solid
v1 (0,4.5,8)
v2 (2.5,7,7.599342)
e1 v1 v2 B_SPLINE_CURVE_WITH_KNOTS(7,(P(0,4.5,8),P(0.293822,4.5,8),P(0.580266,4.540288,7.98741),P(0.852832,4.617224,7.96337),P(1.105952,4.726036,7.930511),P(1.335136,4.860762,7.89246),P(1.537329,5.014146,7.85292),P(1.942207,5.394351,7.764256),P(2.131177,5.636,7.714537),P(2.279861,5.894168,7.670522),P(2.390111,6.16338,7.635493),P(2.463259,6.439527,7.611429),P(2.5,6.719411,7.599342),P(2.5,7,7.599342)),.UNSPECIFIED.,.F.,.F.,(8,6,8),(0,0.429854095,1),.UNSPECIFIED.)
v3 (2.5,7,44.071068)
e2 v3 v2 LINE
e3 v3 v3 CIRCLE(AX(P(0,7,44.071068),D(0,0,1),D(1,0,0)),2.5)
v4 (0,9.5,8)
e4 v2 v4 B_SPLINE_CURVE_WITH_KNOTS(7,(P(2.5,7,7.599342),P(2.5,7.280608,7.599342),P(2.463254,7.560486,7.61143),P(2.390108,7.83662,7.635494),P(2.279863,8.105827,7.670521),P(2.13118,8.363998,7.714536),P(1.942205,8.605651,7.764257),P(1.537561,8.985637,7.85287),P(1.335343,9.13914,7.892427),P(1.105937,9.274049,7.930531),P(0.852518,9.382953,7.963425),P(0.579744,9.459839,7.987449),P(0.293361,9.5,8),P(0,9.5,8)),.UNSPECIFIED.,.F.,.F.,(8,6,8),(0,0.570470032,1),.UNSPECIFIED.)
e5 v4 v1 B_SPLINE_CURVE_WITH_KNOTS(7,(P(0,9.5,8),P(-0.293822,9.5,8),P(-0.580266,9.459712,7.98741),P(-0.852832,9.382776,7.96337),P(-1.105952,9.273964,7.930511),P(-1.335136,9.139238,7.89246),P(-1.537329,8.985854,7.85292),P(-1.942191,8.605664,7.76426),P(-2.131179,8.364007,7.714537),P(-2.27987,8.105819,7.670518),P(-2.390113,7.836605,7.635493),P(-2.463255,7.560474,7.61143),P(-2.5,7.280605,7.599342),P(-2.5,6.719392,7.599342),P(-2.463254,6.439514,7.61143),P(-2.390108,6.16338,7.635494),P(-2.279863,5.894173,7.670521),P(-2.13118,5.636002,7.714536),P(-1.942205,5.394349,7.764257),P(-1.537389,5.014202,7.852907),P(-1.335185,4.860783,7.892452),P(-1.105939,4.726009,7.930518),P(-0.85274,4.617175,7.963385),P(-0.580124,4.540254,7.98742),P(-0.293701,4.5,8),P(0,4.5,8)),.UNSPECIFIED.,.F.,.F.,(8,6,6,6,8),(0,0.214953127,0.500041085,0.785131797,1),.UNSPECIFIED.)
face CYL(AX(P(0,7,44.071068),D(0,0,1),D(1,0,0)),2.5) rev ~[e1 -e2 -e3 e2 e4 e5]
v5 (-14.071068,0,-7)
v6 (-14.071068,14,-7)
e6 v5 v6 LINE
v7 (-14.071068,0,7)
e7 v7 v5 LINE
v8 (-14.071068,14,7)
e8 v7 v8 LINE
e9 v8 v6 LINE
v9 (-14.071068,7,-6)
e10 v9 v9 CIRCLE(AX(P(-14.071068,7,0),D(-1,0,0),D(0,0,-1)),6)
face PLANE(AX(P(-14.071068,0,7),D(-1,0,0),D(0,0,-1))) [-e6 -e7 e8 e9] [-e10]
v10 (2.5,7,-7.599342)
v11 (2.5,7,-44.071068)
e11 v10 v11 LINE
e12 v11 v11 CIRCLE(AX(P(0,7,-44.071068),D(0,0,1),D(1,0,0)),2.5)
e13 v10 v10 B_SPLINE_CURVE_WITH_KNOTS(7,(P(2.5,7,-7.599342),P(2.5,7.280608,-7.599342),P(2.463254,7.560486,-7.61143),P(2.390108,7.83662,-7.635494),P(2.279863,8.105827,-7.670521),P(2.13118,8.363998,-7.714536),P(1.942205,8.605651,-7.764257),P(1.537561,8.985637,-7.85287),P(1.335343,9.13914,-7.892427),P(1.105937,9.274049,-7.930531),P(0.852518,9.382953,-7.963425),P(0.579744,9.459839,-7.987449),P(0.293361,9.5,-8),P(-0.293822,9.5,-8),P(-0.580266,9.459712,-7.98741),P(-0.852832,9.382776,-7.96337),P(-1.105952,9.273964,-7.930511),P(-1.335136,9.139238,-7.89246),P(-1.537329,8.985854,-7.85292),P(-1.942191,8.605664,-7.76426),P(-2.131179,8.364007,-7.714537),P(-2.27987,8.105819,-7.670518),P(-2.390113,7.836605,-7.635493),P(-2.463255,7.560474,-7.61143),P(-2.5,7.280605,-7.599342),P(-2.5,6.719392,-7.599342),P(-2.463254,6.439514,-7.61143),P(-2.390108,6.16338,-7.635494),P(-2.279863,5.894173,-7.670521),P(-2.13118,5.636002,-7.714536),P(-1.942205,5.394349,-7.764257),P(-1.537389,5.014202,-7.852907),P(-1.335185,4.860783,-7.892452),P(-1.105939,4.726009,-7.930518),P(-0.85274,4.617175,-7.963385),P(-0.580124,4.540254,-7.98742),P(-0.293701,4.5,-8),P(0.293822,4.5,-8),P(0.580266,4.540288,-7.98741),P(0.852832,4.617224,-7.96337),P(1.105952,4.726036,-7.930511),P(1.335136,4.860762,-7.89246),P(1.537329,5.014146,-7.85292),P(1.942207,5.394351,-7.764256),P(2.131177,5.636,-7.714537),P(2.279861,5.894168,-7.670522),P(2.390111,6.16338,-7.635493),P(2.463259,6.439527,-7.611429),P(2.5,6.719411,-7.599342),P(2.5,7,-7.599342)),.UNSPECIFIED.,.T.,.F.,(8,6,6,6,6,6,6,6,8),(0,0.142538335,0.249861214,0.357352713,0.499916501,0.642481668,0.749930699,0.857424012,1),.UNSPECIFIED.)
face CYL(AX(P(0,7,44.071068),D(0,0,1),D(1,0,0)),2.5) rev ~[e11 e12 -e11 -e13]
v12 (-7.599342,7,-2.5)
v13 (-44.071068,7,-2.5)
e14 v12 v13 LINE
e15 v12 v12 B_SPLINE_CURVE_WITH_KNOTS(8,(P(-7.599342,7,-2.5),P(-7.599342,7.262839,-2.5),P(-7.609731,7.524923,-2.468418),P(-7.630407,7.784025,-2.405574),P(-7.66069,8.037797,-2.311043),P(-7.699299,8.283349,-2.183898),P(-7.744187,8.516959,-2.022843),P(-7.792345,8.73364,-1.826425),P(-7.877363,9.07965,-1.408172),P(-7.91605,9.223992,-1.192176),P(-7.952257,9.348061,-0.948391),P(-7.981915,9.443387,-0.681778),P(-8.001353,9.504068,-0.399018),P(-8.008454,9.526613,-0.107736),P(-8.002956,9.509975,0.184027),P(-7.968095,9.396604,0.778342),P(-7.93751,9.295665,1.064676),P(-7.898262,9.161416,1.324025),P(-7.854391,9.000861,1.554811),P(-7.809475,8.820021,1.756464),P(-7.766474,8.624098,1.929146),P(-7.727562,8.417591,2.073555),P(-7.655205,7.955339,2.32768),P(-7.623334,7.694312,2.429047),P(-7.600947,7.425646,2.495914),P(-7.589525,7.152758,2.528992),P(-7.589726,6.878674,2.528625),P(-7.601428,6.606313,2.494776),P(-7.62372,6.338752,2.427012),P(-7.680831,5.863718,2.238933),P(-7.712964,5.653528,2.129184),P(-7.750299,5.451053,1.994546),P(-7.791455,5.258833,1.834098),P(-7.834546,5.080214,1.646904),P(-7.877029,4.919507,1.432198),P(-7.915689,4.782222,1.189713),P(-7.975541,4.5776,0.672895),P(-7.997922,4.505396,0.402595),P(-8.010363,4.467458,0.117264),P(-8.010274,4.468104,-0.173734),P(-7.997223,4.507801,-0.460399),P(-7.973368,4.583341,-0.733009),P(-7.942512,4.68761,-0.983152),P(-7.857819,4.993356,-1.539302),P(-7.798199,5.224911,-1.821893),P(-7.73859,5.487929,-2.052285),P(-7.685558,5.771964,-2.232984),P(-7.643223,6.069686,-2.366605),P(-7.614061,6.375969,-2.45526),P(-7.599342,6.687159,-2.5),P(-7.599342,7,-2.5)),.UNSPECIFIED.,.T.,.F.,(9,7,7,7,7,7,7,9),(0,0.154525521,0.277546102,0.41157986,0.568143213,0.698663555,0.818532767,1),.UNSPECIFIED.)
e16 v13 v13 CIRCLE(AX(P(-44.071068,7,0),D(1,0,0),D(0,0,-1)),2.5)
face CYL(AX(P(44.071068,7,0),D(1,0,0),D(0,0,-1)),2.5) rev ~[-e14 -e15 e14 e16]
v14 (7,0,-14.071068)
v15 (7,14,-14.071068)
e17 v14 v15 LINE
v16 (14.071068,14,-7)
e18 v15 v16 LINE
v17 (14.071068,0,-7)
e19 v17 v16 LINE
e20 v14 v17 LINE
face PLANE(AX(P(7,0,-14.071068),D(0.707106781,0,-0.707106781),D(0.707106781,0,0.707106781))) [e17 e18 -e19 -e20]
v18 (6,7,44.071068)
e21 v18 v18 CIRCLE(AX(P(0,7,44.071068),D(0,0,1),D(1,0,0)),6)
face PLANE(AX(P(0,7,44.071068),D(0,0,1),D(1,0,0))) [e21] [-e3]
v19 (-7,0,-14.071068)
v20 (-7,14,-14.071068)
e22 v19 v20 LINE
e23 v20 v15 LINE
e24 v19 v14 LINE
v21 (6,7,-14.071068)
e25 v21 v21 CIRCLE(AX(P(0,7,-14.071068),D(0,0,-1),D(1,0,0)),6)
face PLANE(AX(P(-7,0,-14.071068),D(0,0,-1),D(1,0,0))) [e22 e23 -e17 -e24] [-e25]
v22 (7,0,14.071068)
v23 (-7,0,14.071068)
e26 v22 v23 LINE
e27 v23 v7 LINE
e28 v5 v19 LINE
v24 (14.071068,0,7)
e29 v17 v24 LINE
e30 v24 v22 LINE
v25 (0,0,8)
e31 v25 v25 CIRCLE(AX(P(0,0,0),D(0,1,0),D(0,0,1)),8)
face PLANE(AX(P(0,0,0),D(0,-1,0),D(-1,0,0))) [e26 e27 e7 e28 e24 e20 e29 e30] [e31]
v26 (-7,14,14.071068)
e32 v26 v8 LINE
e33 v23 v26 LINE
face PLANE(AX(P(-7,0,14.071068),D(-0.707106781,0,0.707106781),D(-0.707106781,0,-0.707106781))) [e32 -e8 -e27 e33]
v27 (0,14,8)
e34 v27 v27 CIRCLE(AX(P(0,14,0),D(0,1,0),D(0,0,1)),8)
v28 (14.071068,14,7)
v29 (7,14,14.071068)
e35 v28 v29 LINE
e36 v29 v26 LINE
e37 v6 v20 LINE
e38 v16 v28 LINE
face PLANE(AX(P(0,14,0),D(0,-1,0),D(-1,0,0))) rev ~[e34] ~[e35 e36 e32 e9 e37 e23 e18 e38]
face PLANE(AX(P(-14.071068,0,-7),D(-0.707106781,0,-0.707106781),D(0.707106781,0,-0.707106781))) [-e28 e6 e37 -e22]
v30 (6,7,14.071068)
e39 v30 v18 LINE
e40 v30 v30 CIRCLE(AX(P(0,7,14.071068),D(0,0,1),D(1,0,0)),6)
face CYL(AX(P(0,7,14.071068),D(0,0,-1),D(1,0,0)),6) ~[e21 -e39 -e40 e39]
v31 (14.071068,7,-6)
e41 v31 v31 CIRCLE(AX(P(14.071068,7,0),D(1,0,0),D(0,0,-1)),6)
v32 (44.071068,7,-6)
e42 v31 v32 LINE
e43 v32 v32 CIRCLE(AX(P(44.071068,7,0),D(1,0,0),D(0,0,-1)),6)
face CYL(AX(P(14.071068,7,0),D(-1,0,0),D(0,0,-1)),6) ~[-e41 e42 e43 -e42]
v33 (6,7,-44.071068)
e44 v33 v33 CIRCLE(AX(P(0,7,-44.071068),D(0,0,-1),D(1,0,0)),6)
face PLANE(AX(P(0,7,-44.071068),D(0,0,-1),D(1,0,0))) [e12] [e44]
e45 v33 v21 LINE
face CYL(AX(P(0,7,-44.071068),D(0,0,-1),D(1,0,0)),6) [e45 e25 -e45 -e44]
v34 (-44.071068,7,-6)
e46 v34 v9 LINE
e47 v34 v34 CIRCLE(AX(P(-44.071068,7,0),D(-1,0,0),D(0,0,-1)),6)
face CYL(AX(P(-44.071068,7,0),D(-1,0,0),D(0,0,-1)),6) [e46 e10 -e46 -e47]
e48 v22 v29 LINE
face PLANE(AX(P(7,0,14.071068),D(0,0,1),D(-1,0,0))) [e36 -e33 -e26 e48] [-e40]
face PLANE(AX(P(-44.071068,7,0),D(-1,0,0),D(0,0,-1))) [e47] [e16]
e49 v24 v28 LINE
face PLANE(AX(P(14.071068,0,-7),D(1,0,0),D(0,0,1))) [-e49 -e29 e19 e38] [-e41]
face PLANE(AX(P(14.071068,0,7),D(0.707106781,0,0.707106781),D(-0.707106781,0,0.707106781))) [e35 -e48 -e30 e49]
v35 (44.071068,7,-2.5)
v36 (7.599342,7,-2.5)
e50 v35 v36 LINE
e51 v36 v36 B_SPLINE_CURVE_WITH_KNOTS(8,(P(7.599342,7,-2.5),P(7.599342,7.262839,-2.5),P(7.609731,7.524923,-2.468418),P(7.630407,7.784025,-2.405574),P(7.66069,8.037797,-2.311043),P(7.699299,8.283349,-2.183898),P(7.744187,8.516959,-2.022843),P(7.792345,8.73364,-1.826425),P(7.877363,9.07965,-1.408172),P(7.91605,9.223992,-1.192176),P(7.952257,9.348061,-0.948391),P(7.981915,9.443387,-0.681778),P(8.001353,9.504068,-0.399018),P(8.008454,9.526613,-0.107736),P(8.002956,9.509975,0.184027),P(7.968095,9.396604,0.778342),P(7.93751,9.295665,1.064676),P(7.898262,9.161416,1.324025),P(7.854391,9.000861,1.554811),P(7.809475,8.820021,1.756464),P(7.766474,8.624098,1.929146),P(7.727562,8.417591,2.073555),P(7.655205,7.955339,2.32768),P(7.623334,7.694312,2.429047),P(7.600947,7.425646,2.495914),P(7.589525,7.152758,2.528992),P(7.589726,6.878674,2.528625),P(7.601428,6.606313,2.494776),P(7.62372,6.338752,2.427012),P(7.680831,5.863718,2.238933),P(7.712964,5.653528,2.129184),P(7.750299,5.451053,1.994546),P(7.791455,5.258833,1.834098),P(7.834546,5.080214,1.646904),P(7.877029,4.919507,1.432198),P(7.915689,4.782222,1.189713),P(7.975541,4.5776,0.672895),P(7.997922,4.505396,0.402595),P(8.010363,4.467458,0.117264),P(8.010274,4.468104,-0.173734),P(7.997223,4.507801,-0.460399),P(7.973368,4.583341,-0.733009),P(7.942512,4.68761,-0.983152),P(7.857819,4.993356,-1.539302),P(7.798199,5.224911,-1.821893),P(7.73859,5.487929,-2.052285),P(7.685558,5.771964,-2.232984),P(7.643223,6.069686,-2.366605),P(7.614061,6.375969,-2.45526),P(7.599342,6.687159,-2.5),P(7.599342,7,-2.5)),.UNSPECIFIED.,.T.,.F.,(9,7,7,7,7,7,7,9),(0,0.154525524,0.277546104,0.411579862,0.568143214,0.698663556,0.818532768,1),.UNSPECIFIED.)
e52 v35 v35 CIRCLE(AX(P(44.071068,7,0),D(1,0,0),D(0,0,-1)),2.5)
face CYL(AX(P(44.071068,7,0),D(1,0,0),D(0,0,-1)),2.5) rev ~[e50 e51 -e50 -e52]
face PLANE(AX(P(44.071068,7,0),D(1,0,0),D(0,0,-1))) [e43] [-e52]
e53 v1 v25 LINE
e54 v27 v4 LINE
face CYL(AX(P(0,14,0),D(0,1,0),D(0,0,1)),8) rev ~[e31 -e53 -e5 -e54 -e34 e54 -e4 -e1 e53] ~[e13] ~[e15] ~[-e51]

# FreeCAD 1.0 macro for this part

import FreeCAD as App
import Part
import Sketcher
from FreeCAD import Vector


def add_polygon(sketch, points):
    """Adds a closed chain of lines whose ends are joined by coincident constraints."""
    first, n = sketch.GeometryCount, len(points)
    for a, b in zip(points, points[1:] + points[:1]):
        sketch.addGeometry(Part.LineSegment(App.Vector(*a, 0), App.Vector(*b, 0)), False)
    for i in range(n):
        sketch.addConstraint(Sketcher.Constraint("Coincident", first + i, 2, first + (i + 1) % n, 1))

doc = App.newDocument("Part")
params = doc.addObject("Spreadsheet::Sheet", "Params")
for row, (alias, value) in enumerate([
    ("sketch1_width", "14 mm"),
    ("sketch1_length", "10 mm"),
    ("pad1_length", "14 mm"),
    ("sketch2_diameter", "12 mm"),
    ("pad2_length", "30 mm"),
    ("sketch3_diameter", "12 mm"),
    ("pad3_length", "30 mm"),
    ("sketch4_diameter", "12 mm"),
    ("pad4_length", "30 mm"),
    ("sketch5_diameter", "12 mm"),
    ("pad5_length", "30 mm"),
    ("sketch6_diameter", "16 mm"),
    ("sketch7_diameter", "5 mm"),
    ("sketch8_diameter", "5 mm"),
], start=1):
    params.set(f"A{row}", alias)
    params.set(f"B{row}", "=" + value)
    params.setAlias(f"B{row}", alias)

body = doc.addObject("PartDesign::Body", "Body")

sketch1 = body.newObject("Sketcher::SketchObject", "Sketch")
sketch1.AttachmentSupport = (doc.getObject("XZ_Plane"), [""])
sketch1.MapMode = "FlatFace"
add_polygon(sketch1, [(14, 7), (14, -7), (7, -14), (-7, -14), (-14, -7), (-14, 7), (-7, 14), (7, 14)])
sketch1.addConstraint([
    Sketcher.Constraint("Vertical", 0),
    Sketcher.Constraint("Horizontal", 2),
    Sketcher.Constraint("Vertical", 4),
    Sketcher.Constraint("Horizontal", 6),
    Sketcher.Constraint("Symmetric", 0, 2, 4, 2, -1, 1),
    Sketcher.Constraint("Symmetric", 1, 2, 5, 2, -1, 1),
    Sketcher.Constraint("Perpendicular", 1, 3),
    Sketcher.Constraint("Perpendicular", 5, 7),
    Sketcher.Constraint("Horizontal", 0, 2, 3, 2),
    Sketcher.Constraint("Horizontal", 4, 2, 7, 2),
    Sketcher.Constraint("Vertical", 2, 2, 5, 2),
    Sketcher.Constraint("Equal", 6, 0),
    Sketcher.Constraint("DistanceX", 2, 2, 2, 1, 14.0),
    Sketcher.Constraint("Distance", 1, 10.0),
])
sketch1.setExpression("Constraints[20]", "Params.sketch1_width")
sketch1.setExpression("Constraints[21]", "Params.sketch1_length")
pad1 = body.newObject("PartDesign::Pad", "Pad")
pad1.Profile = sketch1
pad1.setExpression("Length", "Params.pad1_length")
pad1.Reversed = True

sketch2 = body.newObject("Sketcher::SketchObject", "Sketch001")
sketch2.AttachmentSupport = (doc.getObject("XY_Plane"), [""])
sketch2.MapMode = "FlatFace"
sketch2.AttachmentOffset = App.Placement(Vector(0, 0, 14.071068), App.Rotation())
sketch2.addGeometry(Part.Circle(Vector(0, 7, 0), Vector(0, 0, 1), 6), False)
sketch2.addConstraint([
    Sketcher.Constraint("PointOnObject", 0, 3, -2),
    Sketcher.Constraint("Diameter", 0, 12.0),
    Sketcher.Constraint("DistanceY", -1, 1, 0, 3, 7.0),
])
sketch2.setExpression("Constraints[1]", "Params.sketch2_diameter")
pad2 = body.newObject("PartDesign::Pad", "Pad001")
pad2.Profile = sketch2
pad2.setExpression("Length", "Params.pad2_length")

sketch3 = body.newObject("Sketcher::SketchObject", "Sketch002")
sketch3.AttachmentSupport = (doc.getObject("YZ_Plane"), [""])
sketch3.MapMode = "FlatFace"
sketch3.AttachmentOffset = App.Placement(Vector(0, 0, 14.071068), App.Rotation())
sketch3.addGeometry(Part.Circle(Vector(7, 0, 0), Vector(0, 0, 1), 6), False)
sketch3.addConstraint([
    Sketcher.Constraint("PointOnObject", 0, 3, -1),
    Sketcher.Constraint("Diameter", 0, 12.0),
    Sketcher.Constraint("DistanceX", -1, 1, 0, 3, 7.0),
])
sketch3.setExpression("Constraints[1]", "Params.sketch3_diameter")
pad3 = body.newObject("PartDesign::Pad", "Pad002")
pad3.Profile = sketch3
pad3.setExpression("Length", "Params.pad3_length")

sketch4 = body.newObject("Sketcher::SketchObject", "Sketch003")
sketch4.AttachmentSupport = (doc.getObject("XY_Plane"), [""])
sketch4.MapMode = "FlatFace"
sketch4.AttachmentOffset = App.Placement(Vector(0, 0, -44.071068), App.Rotation())
sketch4.addGeometry(Part.Circle(Vector(0, 7, 0), Vector(0, 0, 1), 6), False)
sketch4.addConstraint([
    Sketcher.Constraint("PointOnObject", 0, 3, -2),
    Sketcher.Constraint("Diameter", 0, 12.0),
    Sketcher.Constraint("DistanceY", -1, 1, 0, 3, 7.0),
])
sketch4.setExpression("Constraints[1]", "Params.sketch4_diameter")
pad4 = body.newObject("PartDesign::Pad", "Pad003")
pad4.Profile = sketch4
pad4.setExpression("Length", "Params.pad4_length")

sketch5 = body.newObject("Sketcher::SketchObject", "Sketch004")
sketch5.AttachmentSupport = (doc.getObject("YZ_Plane"), [""])
sketch5.MapMode = "FlatFace"
sketch5.AttachmentOffset = App.Placement(Vector(0, 0, -44.071068), App.Rotation())
sketch5.addGeometry(Part.Circle(Vector(7, 0, 0), Vector(0, 0, 1), 6), False)
sketch5.addConstraint([
    Sketcher.Constraint("PointOnObject", 0, 3, -1),
    Sketcher.Constraint("Diameter", 0, 12.0),
    Sketcher.Constraint("DistanceX", -1, 1, 0, 3, 7.0),
])
sketch5.setExpression("Constraints[1]", "Params.sketch5_diameter")
pad5 = body.newObject("PartDesign::Pad", "Pad004")
pad5.Profile = sketch5
pad5.setExpression("Length", "Params.pad5_length")

sketch6 = body.newObject("Sketcher::SketchObject", "Sketch005")
sketch6.AttachmentSupport = (doc.getObject("XZ_Plane"), [""])
sketch6.MapMode = "FlatFace"
sketch6.AttachmentOffset = App.Placement(Vector(0, 0, -14), App.Rotation())
sketch6.addGeometry(Part.Circle(Vector(0, 0, 0), Vector(0, 0, 1), 8), False)
sketch6.addConstraint([
    Sketcher.Constraint("Coincident", 0, 3, -1, 1),
    Sketcher.Constraint("Diameter", 0, 16.0),
])
sketch6.setExpression("Constraints[1]", "Params.sketch6_diameter")
pocket1 = body.newObject("PartDesign::Pocket", "Pocket")
pocket1.Profile = sketch6
pocket1.Type = "ThroughAll"
pocket1.Reversed = True

sketch7 = body.newObject("Sketcher::SketchObject", "Sketch006")
sketch7.AttachmentSupport = (doc.getObject("XY_Plane"), [""])
sketch7.MapMode = "FlatFace"
sketch7.AttachmentOffset = App.Placement(Vector(0, 0, 44.071068), App.Rotation())
sketch7.addGeometry(Part.Circle(Vector(0, 7, 0), Vector(0, 0, 1), 2.5), False)
sketch7.addConstraint([
    Sketcher.Constraint("PointOnObject", 0, 3, -2),
    Sketcher.Constraint("Diameter", 0, 5.0),
    Sketcher.Constraint("DistanceY", -1, 1, 0, 3, 7.0),
])
sketch7.setExpression("Constraints[1]", "Params.sketch7_diameter")
pocket2 = body.newObject("PartDesign::Pocket", "Pocket001")
pocket2.Profile = sketch7
pocket2.Type = "ThroughAll"

sketch8 = body.newObject("Sketcher::SketchObject", "Sketch007")
sketch8.AttachmentSupport = (doc.getObject("YZ_Plane"), [""])
sketch8.MapMode = "FlatFace"
sketch8.AttachmentOffset = App.Placement(Vector(0, 0, 44.071068), App.Rotation())
sketch8.addGeometry(Part.Circle(Vector(7, 0, 0), Vector(0, 0, 1), 2.5), False)
sketch8.addConstraint([
    Sketcher.Constraint("PointOnObject", 0, 3, -1),
    Sketcher.Constraint("Diameter", 0, 5.0),
    Sketcher.Constraint("DistanceX", -1, 1, 0, 3, 7.0),
])
sketch8.setExpression("Constraints[1]", "Params.sketch8_diameter")
pocket3 = body.newObject("PartDesign::Pocket", "Pocket002")
pocket3.Profile = sketch8
pocket3.Type = "ThroughAll"

doc.recompute()
